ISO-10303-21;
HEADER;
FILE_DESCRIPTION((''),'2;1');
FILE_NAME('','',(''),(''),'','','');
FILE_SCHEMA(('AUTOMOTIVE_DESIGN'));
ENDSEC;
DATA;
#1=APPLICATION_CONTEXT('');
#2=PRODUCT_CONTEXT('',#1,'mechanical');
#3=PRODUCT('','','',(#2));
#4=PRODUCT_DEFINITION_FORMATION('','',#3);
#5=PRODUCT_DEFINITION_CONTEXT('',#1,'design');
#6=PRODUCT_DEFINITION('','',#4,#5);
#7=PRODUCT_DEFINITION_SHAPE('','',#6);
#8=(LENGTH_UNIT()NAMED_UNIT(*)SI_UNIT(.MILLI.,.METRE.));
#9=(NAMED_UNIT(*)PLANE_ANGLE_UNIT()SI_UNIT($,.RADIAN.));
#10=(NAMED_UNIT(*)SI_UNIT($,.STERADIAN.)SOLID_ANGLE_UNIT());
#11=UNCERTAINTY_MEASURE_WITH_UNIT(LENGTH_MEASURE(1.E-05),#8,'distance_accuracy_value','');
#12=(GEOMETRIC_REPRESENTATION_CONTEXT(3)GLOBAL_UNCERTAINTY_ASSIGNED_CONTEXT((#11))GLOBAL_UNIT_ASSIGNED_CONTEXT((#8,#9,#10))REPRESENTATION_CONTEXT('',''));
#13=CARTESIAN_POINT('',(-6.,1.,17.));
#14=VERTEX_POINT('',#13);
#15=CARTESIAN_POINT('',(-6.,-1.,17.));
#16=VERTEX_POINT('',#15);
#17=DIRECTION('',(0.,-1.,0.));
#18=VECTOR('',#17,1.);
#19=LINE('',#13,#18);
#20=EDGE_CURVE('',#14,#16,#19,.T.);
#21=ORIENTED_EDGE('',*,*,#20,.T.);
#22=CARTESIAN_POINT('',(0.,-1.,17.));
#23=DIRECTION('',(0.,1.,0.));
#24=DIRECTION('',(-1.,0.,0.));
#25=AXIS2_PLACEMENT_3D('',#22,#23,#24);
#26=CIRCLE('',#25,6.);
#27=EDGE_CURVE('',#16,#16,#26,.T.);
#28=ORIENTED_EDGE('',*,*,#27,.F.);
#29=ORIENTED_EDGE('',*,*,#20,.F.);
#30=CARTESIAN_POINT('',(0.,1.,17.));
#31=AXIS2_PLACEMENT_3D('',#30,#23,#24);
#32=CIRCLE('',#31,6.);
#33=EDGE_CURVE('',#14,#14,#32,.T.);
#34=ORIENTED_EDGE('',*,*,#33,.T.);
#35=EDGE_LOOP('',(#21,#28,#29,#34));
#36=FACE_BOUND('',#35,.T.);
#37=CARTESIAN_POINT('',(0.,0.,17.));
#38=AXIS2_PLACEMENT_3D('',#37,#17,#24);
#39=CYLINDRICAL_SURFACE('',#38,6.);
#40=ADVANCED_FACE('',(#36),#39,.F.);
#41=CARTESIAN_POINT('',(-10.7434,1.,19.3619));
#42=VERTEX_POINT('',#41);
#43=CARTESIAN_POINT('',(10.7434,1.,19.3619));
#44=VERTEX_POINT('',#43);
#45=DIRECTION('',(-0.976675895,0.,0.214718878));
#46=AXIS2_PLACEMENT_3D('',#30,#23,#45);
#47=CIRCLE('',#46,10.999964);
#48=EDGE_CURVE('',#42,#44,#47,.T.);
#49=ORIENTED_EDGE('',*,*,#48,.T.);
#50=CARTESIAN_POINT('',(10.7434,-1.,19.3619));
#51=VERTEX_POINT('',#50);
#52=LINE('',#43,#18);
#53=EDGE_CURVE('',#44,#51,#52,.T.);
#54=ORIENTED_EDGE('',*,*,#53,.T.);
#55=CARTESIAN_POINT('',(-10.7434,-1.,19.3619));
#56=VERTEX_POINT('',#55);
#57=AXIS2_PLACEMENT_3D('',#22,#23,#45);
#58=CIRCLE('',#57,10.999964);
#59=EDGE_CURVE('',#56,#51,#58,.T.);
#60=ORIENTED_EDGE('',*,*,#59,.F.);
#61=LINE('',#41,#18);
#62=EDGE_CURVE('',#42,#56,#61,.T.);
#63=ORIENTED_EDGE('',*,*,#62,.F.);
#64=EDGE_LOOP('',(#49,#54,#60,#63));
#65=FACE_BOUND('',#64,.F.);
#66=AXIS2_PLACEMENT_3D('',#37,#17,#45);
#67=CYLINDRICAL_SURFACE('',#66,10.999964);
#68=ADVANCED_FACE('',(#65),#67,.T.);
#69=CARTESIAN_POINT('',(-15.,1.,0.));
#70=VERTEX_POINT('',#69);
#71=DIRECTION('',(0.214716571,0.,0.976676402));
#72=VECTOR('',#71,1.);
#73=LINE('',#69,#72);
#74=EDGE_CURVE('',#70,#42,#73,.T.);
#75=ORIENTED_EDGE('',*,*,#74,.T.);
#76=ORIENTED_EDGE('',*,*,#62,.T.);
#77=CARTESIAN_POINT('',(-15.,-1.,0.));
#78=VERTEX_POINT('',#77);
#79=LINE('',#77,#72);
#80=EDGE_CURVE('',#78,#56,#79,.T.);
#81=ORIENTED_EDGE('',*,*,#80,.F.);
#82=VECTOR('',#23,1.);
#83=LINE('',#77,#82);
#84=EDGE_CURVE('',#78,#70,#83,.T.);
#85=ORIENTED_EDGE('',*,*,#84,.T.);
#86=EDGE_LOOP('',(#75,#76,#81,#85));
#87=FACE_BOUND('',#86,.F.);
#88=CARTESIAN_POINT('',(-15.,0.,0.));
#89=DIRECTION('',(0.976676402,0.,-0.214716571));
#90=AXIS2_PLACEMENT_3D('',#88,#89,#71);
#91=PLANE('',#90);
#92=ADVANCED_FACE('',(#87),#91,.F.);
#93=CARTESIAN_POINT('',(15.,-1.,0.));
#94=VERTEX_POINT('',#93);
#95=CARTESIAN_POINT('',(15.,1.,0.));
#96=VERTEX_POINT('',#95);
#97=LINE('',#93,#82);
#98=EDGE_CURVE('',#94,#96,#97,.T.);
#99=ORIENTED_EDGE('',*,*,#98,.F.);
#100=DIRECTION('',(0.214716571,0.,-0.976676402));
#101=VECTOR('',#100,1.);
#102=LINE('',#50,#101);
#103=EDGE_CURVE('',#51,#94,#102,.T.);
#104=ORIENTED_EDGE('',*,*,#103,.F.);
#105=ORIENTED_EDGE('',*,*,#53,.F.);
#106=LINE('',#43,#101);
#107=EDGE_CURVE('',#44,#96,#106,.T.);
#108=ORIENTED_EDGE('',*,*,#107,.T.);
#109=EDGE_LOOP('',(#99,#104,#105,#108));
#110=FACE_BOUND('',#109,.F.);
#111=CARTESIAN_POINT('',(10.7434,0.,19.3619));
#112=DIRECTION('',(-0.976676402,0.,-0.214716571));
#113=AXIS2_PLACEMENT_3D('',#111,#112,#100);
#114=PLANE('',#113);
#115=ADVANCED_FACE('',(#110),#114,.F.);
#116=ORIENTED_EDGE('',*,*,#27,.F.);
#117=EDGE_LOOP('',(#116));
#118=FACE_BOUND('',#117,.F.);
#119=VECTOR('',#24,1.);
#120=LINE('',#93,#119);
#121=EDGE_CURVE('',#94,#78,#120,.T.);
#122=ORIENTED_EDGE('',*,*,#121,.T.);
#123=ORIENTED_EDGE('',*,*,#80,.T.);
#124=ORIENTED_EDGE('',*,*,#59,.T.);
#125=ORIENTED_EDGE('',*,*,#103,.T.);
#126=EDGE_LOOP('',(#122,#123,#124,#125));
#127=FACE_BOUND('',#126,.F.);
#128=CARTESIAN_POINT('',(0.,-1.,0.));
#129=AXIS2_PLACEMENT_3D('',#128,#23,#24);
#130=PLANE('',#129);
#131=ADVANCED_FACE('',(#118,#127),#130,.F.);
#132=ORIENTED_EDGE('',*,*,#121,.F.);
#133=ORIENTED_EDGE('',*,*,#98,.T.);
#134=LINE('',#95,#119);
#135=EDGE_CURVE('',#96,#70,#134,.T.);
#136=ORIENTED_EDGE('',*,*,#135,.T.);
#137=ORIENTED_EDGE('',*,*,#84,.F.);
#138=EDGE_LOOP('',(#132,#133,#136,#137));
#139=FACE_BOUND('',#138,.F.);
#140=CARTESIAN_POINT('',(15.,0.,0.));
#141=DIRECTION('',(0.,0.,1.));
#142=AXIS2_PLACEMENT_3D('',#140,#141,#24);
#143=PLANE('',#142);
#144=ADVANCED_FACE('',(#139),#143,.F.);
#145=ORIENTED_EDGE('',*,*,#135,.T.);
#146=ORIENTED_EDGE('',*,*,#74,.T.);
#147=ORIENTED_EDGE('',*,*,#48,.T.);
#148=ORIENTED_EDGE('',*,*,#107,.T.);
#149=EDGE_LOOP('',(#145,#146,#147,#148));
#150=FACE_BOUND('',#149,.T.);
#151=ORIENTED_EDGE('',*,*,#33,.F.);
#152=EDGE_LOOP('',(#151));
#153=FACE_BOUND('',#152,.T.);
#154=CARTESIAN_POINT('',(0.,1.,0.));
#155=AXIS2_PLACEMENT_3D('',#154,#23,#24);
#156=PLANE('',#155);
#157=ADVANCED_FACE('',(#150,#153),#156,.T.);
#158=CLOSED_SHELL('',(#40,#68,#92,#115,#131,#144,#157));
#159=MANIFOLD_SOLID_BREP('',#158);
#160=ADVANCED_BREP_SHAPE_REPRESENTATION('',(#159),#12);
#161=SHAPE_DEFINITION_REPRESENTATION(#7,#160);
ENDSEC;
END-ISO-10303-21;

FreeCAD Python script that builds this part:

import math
import FreeCAD as App
import Part
import Sketcher

doc = App.newDocument("Part")
body = doc.addObject("PartDesign::Body", "Body")

# Sketch on XZ plane
sketch1 = body.newObject("Sketcher::SketchObject", "Sketch")
sketch1.AttachmentSupport = (doc.getObject("XZ_Plane"), [""])
sketch1.MapMode = "FlatFace"
sketch1.addGeometry(Part.LineSegment(App.Vector(11, 19, 0), App.Vector(15, 0, 0)), False)
sketch1.addGeometry(Part.LineSegment(App.Vector(15, 0, 0), App.Vector(-15, 0, 0)), False)
sketch1.addGeometry(Part.LineSegment(App.Vector(-15, 0, 0), App.Vector(-11, 19, 0)), False)
sketch1.addGeometry(Part.ArcOfCircle(Part.Circle(App.Vector(0, 17, 0), App.Vector(0, 0, 1), 11), math.radians(12), math.radians(168)), False)
sketch1.addGeometry(Part.Circle(App.Vector(0, 17, 0), App.Vector(0, 0, 1), 6), False)
sketch1.addConstraint(Sketcher.Constraint("Coincident", 0, 2, 1, 1))
sketch1.addConstraint(Sketcher.Constraint("Coincident", 1, 2, 2, 1))
sketch1.addConstraint(Sketcher.Constraint("Tangent", 2, 2, 3, 2))
sketch1.addConstraint(Sketcher.Constraint("Tangent", 3, 1, 0, 1))
sketch1.addConstraint(Sketcher.Constraint("Horizontal", 1))
sketch1.addConstraint(Sketcher.Constraint("Coincident", 4, 3, 3, 3))
sketch1.addConstraint(Sketcher.Constraint("Symmetric", 0, 2, 1, 2, -1, 1))
sketch1.addConstraint(Sketcher.Constraint("PointOnObject", 3, 3, -2))
sketch1.addConstraint(Sketcher.Constraint("Diameter", 4, 12.0))
sketch1.addConstraint(Sketcher.Constraint("DistanceX", 1, 2, 1, 1, 30.0))
sketch1.addConstraint(Sketcher.Constraint("DistanceY", -1, 1, 3, 3, 17.0))
sketch1.addConstraint(Sketcher.Constraint("Radius", 3, 11.0))
pad1 = body.newObject("PartDesign::Pad", "Pad")
pad1.Profile = sketch1
pad1.Length = 2
pad1.Midplane = True

doc.recompute()
